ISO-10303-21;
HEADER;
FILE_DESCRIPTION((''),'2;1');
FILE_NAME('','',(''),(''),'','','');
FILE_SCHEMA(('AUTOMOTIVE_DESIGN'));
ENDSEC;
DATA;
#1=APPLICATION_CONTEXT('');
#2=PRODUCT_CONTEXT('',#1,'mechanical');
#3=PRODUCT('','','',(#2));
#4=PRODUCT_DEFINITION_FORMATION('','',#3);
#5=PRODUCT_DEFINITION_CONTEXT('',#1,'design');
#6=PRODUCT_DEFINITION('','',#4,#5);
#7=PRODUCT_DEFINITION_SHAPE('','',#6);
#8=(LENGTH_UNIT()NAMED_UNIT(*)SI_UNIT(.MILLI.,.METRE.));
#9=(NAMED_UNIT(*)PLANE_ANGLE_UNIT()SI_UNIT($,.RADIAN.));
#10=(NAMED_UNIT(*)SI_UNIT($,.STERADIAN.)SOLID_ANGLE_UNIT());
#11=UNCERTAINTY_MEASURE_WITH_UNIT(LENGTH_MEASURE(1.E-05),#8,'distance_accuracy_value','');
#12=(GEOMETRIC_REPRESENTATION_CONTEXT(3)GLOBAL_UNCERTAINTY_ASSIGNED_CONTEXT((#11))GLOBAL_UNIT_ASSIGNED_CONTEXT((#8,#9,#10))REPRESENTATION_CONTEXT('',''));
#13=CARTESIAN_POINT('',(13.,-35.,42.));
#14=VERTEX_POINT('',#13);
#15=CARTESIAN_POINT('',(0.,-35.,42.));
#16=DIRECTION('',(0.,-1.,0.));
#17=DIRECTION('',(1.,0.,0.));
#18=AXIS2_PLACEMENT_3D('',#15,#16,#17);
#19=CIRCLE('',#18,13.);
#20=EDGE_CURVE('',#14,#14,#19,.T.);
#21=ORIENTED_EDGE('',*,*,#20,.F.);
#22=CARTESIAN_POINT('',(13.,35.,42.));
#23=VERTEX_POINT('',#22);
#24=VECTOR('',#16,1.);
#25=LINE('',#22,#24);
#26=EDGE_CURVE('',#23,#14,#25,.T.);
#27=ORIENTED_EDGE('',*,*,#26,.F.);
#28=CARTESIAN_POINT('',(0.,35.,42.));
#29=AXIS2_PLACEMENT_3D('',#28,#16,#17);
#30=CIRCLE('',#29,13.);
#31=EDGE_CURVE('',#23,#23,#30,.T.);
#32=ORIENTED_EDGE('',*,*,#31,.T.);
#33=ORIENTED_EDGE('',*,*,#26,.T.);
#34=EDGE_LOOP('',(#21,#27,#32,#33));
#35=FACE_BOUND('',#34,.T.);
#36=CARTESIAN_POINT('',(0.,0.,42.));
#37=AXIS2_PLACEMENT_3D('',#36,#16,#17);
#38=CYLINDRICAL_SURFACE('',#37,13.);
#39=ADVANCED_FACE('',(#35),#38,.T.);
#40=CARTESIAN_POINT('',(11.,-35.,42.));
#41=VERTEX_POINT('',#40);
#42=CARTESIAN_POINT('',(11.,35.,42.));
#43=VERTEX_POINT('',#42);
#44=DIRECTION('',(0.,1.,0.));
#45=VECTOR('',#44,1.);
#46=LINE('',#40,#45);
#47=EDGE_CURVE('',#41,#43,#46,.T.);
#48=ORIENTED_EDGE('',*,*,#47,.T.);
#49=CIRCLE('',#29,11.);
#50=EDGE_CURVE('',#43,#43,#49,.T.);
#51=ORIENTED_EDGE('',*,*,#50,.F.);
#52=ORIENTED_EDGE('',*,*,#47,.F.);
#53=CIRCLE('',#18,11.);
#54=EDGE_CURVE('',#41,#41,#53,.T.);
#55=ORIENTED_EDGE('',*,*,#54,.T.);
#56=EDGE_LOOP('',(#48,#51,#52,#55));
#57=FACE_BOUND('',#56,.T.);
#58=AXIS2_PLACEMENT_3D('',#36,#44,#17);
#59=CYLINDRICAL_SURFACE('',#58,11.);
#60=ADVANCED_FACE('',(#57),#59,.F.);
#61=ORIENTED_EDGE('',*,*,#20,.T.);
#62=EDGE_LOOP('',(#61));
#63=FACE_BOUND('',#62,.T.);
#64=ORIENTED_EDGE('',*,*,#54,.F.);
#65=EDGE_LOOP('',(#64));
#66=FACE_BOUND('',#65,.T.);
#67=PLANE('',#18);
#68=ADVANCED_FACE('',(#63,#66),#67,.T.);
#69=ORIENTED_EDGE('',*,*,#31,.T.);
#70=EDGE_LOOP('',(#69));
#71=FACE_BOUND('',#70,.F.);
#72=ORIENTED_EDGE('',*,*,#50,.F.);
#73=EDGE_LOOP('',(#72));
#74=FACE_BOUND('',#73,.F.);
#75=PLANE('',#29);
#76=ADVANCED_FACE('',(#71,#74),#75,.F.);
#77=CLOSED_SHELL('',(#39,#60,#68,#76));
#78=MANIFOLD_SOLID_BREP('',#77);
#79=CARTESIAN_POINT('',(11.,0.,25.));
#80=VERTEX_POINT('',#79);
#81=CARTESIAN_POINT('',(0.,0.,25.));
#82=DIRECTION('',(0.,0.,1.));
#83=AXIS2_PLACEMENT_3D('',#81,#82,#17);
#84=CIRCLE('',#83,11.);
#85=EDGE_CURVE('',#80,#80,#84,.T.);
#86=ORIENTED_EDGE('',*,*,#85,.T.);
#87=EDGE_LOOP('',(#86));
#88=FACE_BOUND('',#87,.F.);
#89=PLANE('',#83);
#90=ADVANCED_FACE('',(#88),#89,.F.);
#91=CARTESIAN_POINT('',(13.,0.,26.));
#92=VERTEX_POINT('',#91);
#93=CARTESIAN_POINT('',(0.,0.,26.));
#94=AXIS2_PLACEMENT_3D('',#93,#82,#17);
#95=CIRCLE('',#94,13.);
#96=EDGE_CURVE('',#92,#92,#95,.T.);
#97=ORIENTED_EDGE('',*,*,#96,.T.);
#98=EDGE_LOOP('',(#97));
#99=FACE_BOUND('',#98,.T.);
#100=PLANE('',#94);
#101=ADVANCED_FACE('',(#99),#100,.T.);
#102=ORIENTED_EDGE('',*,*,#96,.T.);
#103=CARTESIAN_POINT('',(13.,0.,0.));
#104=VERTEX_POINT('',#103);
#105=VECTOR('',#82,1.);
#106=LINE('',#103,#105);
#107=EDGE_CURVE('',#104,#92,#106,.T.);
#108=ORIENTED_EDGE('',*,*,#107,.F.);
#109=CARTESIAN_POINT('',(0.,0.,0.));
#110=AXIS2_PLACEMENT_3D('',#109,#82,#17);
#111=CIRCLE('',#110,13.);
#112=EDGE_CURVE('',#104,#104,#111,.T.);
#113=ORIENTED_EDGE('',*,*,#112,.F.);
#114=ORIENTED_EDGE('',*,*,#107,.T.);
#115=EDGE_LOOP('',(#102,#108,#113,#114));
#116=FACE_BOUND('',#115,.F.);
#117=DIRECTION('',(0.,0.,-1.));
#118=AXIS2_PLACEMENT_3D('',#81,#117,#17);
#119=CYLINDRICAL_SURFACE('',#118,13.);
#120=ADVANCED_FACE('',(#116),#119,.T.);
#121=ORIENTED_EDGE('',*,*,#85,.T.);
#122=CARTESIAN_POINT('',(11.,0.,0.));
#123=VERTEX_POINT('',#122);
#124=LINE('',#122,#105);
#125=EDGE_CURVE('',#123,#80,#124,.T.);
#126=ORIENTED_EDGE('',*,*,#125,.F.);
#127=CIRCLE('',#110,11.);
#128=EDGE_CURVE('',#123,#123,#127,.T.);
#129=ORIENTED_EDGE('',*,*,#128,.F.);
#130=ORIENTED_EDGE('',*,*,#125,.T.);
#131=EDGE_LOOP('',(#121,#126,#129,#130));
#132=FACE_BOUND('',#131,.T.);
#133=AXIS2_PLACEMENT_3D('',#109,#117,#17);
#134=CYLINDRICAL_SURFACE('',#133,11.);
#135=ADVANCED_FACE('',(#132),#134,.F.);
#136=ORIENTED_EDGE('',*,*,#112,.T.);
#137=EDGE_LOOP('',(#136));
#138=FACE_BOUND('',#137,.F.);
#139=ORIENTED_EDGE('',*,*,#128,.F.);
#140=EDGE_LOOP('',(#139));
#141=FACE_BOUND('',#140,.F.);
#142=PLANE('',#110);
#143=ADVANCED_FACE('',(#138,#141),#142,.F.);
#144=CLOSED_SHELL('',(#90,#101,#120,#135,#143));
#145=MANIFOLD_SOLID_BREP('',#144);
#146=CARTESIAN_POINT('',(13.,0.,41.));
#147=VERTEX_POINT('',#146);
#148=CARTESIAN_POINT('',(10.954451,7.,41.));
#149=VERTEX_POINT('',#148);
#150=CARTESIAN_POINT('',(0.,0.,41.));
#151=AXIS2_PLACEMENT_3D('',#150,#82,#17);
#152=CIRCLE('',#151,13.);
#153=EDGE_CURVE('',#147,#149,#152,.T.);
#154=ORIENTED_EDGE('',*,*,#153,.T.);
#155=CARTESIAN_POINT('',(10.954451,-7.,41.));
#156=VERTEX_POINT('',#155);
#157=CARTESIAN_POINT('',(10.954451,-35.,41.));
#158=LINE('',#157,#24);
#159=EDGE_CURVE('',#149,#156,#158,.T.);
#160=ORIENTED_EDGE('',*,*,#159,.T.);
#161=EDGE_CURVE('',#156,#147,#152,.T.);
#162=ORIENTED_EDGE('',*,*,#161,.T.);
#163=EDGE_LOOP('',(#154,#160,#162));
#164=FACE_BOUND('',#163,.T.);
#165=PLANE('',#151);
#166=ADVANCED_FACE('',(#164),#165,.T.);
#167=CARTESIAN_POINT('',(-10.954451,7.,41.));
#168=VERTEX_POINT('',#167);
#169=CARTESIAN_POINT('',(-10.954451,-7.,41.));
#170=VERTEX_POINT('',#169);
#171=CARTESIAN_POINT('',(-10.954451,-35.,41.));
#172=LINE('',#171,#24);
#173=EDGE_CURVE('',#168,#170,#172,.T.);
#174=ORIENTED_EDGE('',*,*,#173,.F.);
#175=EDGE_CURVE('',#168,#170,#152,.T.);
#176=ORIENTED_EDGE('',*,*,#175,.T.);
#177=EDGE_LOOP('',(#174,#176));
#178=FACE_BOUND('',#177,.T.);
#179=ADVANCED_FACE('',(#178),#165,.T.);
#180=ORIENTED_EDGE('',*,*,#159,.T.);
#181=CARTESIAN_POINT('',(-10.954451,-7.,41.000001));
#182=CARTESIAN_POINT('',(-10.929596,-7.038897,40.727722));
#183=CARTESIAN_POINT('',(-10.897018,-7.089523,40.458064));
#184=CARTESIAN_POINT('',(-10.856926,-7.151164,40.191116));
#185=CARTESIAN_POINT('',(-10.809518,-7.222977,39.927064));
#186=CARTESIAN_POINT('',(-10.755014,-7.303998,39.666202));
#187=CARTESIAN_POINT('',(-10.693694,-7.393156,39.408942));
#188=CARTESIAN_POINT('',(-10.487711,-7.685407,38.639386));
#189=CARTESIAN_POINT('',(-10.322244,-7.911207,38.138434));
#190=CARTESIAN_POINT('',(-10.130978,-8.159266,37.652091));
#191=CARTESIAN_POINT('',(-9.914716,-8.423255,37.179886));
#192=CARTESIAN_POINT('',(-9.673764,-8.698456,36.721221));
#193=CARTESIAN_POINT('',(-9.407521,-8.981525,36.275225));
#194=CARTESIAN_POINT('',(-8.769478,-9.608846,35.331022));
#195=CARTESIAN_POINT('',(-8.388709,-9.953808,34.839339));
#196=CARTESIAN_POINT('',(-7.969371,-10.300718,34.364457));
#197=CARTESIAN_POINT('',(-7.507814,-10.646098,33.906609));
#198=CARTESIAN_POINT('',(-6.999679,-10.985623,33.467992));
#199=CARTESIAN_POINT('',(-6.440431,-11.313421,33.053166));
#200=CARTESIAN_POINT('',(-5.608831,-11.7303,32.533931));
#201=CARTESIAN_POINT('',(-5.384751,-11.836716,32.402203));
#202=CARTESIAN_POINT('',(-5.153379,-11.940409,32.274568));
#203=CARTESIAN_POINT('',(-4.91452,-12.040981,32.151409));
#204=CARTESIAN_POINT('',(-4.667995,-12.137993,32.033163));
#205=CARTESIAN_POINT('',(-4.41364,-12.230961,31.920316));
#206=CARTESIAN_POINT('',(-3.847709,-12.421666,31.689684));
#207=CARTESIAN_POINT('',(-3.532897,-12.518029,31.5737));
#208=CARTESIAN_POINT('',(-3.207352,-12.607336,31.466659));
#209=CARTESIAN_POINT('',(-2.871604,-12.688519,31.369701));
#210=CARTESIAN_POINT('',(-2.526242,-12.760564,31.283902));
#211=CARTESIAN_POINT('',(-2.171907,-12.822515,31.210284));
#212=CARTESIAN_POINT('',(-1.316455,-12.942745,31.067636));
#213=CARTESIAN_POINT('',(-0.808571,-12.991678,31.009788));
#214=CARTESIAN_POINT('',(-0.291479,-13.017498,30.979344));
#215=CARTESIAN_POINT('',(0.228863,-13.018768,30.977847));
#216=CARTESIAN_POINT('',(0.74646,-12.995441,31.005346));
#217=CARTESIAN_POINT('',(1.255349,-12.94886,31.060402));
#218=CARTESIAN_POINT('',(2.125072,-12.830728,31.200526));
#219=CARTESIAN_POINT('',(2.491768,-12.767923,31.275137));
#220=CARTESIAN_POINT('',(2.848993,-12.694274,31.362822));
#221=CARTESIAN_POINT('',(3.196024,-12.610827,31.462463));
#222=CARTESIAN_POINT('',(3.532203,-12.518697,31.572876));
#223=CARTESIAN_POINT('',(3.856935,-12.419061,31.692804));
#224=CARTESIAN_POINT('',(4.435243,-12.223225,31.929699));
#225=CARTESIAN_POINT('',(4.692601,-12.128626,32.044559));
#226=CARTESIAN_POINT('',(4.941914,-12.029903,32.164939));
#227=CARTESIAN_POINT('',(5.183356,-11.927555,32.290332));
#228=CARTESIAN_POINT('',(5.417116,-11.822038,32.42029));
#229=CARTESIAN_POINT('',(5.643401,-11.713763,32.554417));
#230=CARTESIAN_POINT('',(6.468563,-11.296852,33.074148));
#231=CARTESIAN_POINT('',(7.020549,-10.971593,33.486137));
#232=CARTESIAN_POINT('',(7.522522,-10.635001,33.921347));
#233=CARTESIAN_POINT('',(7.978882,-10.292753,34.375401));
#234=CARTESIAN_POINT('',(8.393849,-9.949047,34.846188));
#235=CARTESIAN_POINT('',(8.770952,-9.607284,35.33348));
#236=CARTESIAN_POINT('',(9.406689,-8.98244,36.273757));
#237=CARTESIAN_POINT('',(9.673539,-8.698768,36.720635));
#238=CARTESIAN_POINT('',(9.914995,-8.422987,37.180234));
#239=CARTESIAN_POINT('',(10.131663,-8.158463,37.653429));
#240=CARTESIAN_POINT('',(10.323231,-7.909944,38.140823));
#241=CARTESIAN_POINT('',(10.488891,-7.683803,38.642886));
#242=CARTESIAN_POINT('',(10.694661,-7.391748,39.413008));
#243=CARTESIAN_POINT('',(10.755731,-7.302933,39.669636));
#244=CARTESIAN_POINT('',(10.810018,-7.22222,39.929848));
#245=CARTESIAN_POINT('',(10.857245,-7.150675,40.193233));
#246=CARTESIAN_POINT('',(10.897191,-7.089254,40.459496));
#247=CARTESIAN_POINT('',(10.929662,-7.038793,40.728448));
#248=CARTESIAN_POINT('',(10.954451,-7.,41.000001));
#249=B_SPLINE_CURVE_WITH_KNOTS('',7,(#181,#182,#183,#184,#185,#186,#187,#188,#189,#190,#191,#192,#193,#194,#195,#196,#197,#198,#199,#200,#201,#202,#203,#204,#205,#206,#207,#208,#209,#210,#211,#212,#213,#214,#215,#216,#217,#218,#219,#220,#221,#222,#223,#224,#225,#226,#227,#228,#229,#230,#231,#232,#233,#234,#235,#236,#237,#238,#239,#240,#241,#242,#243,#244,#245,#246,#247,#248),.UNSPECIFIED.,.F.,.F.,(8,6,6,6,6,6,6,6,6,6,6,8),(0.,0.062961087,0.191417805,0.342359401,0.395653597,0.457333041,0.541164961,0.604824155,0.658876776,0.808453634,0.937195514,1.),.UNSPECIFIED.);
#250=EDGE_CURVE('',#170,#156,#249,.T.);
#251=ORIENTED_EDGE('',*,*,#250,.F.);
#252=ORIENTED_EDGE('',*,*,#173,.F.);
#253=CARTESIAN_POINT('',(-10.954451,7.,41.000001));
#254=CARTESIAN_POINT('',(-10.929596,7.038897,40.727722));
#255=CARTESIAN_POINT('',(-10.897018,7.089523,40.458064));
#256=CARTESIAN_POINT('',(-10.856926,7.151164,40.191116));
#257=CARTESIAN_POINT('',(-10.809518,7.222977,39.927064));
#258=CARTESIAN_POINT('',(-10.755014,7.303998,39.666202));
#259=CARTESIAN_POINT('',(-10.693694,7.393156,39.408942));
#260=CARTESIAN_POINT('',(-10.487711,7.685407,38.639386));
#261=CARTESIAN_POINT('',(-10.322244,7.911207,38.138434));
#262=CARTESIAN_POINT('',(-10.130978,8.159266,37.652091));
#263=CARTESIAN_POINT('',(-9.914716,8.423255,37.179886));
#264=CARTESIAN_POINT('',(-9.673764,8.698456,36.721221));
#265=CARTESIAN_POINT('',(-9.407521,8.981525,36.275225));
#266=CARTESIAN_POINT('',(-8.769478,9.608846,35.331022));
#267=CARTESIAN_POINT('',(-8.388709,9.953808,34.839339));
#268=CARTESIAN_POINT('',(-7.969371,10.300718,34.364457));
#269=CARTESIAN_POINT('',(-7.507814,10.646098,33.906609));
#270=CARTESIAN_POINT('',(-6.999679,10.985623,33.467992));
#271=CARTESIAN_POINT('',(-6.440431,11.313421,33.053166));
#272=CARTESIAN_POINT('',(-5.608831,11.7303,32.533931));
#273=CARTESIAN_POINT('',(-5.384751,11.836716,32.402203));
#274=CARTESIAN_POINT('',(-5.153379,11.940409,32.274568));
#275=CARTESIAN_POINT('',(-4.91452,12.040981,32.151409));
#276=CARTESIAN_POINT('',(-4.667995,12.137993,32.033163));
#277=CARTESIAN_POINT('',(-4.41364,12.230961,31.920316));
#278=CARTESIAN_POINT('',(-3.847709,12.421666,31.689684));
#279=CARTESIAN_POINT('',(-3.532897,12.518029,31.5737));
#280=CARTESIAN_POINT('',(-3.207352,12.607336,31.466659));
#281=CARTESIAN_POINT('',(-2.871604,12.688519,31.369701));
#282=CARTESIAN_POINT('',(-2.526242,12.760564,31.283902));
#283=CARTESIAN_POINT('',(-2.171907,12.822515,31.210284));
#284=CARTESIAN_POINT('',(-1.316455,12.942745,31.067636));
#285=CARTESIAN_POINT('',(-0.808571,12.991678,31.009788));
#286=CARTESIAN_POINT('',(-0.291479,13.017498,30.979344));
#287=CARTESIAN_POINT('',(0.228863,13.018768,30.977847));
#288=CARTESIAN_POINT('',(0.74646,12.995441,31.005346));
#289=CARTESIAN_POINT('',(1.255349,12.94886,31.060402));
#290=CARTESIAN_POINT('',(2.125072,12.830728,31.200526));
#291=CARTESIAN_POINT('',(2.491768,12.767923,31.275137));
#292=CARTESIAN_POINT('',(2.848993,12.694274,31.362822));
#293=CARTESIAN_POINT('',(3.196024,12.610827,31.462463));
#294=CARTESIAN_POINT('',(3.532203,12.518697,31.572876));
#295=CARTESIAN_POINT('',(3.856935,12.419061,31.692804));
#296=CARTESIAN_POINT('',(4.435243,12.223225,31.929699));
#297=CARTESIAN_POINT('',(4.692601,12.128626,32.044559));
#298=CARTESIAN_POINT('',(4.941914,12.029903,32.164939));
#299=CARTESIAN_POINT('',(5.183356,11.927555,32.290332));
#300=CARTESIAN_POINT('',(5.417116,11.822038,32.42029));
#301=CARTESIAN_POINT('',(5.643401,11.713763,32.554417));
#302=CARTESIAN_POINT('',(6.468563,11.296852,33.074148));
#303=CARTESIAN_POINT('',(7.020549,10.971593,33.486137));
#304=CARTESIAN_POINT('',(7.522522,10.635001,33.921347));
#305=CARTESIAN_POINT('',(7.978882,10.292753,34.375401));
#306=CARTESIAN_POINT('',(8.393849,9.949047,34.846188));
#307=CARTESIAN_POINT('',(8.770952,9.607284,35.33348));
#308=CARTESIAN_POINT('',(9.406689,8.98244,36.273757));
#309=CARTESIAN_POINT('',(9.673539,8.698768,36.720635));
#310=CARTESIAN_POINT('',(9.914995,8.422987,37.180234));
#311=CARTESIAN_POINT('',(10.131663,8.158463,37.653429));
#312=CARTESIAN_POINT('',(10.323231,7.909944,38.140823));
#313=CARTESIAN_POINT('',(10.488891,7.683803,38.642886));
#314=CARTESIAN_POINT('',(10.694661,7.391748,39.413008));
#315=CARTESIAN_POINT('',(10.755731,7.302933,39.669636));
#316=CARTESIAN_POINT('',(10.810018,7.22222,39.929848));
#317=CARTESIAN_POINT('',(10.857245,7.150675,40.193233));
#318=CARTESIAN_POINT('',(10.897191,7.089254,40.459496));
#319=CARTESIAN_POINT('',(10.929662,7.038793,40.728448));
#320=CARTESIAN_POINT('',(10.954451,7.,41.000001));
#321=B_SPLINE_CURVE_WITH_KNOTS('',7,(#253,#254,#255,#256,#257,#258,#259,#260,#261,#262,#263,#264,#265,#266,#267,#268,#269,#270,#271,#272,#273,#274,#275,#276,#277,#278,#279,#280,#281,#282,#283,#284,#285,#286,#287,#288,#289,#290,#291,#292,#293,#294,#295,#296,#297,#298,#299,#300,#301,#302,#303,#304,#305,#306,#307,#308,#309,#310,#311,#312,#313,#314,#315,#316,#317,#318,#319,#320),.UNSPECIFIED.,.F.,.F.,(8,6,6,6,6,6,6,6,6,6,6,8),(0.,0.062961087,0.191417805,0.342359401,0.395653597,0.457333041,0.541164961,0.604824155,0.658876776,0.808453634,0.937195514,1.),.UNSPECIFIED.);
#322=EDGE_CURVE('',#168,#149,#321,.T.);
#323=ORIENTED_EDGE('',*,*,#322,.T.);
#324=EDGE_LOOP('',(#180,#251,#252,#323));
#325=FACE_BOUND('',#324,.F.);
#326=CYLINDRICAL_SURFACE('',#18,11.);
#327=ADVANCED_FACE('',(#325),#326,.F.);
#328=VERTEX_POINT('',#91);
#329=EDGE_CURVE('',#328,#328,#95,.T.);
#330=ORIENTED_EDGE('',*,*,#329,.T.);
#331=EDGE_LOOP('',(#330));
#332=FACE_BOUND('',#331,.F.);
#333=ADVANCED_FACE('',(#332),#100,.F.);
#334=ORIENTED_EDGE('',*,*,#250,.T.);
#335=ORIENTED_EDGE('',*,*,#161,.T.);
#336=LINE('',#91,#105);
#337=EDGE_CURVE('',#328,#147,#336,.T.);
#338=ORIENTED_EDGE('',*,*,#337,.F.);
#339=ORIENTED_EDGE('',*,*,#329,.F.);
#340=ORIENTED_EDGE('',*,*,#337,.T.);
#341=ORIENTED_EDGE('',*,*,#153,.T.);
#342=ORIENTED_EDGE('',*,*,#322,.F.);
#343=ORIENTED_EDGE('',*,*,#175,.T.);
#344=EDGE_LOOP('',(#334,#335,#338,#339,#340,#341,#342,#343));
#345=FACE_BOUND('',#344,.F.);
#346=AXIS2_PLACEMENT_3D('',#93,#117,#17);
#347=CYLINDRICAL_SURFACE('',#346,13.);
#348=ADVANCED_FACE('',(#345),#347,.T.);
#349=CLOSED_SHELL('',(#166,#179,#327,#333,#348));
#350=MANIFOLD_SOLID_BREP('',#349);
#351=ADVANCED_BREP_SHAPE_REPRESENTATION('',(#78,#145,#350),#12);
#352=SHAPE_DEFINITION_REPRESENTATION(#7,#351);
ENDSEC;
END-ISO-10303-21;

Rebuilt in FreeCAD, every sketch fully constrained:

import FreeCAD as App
import Part
import Sketcher
Q = App.Units.Quantity

doc = App.newDocument("Part")
body = doc.addObject("PartDesign::Body", "Body")

sketch1 = body.newObject("Sketcher::SketchObject", "Sketch")
sketch1.AttachmentSupport = (doc.getObject("XY_Plane"), [""])
sketch1.MapMode = "FlatFace"
sketch1.addGeometry([
    Part.Circle(App.Vector(0, 0, 0), App.Vector(0, 0, 1), 13),
    Part.Circle(App.Vector(0, 0, 0), App.Vector(0, 0, 1), 11),
], False)
sketch1.addConstraint([
    Sketcher.Constraint("Coincident", 0, 3, -1, 1),
    Sketcher.Constraint("Coincident", 1, 3, -1, 1),
    Sketcher.Constraint("Diameter", 0, Q("26 mm")),
    Sketcher.Constraint("Diameter", 1, Q("22 mm")),
])
pad1 = body.newObject("PartDesign::Pad", "Pad")
pad1.Profile = sketch1
pad1.Length = 25

sketch2 = body.newObject("Sketcher::SketchObject", "Sketch001")
sketch2.AttachmentSupport = (doc.getObject("XY_Plane"), [""])
sketch2.MapMode = "FlatFace"
sketch2.AttachmentOffset = App.Placement(App.Vector(0, 0, 25), App.Rotation())
sketch2.addGeometry(Part.Circle(App.Vector(0, 0, 0), App.Vector(0, 0, 1), 13), False)
sketch2.addConstraint([
    Sketcher.Constraint("Coincident", 0, 3, -1, 1),
    Sketcher.Constraint("Diameter", 0, Q("26 mm")),
])
pad2 = body.newObject("PartDesign::Pad", "Pad001")
pad2.Profile = sketch2
pad2.Length = 1
body2 = doc.addObject("PartDesign::Body", "Body001")

sketch3 = body2.newObject("Sketcher::SketchObject", "Sketch002")
sketch3.AttachmentSupport = (doc.getObject("XZ_Plane001"), [""])
sketch3.MapMode = "FlatFace"
sketch3.addGeometry([
    Part.Circle(App.Vector(0, 42, 0), App.Vector(0, 0, 1), 13),
    Part.Circle(App.Vector(0, 42, 0), App.Vector(0, 0, 1), 11),
], False)
sketch3.addConstraint([
    Sketcher.Constraint("Coincident", 1, 3, 0, 3),
    Sketcher.Constraint("PointOnObject", 0, 3, -2),
    Sketcher.Constraint("Diameter", 0, Q("26 mm")),
    Sketcher.Constraint("Diameter", 1, Q("22 mm")),
    Sketcher.Constraint("DistanceY", -1, 1, 0, 3, Q("42 mm")),
])
pad3 = body2.newObject("PartDesign::Pad", "Pad002")
pad3.Profile = sketch3
pad3.Length = 70
pad3.Midplane = True
body3 = doc.addObject("PartDesign::Body", "Body002")

sketch4 = body3.newObject("Sketcher::SketchObject", "Sketch003")
sketch4.AttachmentSupport = (doc.getObject("XY_Plane002"), [""])
sketch4.MapMode = "FlatFace"
sketch4.AttachmentOffset = App.Placement(App.Vector(0, 0, 26), App.Rotation())
sketch4.addGeometry(Part.Circle(App.Vector(0, 0, 0), App.Vector(0, 0, 1), 13), False)
sketch4.addConstraint([
    Sketcher.Constraint("Coincident", 0, 3, -1, 1),
    Sketcher.Constraint("Diameter", 0, Q("26 mm")),
])
pad4 = body3.newObject("PartDesign::Pad", "Pad003")
pad4.Profile = sketch4
pad4.Length = 15

sketch5 = body3.newObject("Sketcher::SketchObject", "Sketch004")
sketch5.AttachmentSupport = (doc.getObject("XZ_Plane002"), [""])
sketch5.MapMode = "FlatFace"
sketch5.AttachmentOffset = App.Placement(App.Vector(0, 0, 35), App.Rotation())
sketch5.addGeometry(Part.Circle(App.Vector(0, 42, 0), App.Vector(0, 0, 1), 11), False)
sketch5.addConstraint([
    Sketcher.Constraint("PointOnObject", 0, 3, -2),
    Sketcher.Constraint("Diameter", 0, Q("22 mm")),
    Sketcher.Constraint("DistanceY", -1, 1, 0, 3, Q("42 mm")),
])
pocket1 = body3.newObject("PartDesign::Pocket", "Pocket")
pocket1.Profile = sketch5
pocket1.Length = 70

doc.recompute()
